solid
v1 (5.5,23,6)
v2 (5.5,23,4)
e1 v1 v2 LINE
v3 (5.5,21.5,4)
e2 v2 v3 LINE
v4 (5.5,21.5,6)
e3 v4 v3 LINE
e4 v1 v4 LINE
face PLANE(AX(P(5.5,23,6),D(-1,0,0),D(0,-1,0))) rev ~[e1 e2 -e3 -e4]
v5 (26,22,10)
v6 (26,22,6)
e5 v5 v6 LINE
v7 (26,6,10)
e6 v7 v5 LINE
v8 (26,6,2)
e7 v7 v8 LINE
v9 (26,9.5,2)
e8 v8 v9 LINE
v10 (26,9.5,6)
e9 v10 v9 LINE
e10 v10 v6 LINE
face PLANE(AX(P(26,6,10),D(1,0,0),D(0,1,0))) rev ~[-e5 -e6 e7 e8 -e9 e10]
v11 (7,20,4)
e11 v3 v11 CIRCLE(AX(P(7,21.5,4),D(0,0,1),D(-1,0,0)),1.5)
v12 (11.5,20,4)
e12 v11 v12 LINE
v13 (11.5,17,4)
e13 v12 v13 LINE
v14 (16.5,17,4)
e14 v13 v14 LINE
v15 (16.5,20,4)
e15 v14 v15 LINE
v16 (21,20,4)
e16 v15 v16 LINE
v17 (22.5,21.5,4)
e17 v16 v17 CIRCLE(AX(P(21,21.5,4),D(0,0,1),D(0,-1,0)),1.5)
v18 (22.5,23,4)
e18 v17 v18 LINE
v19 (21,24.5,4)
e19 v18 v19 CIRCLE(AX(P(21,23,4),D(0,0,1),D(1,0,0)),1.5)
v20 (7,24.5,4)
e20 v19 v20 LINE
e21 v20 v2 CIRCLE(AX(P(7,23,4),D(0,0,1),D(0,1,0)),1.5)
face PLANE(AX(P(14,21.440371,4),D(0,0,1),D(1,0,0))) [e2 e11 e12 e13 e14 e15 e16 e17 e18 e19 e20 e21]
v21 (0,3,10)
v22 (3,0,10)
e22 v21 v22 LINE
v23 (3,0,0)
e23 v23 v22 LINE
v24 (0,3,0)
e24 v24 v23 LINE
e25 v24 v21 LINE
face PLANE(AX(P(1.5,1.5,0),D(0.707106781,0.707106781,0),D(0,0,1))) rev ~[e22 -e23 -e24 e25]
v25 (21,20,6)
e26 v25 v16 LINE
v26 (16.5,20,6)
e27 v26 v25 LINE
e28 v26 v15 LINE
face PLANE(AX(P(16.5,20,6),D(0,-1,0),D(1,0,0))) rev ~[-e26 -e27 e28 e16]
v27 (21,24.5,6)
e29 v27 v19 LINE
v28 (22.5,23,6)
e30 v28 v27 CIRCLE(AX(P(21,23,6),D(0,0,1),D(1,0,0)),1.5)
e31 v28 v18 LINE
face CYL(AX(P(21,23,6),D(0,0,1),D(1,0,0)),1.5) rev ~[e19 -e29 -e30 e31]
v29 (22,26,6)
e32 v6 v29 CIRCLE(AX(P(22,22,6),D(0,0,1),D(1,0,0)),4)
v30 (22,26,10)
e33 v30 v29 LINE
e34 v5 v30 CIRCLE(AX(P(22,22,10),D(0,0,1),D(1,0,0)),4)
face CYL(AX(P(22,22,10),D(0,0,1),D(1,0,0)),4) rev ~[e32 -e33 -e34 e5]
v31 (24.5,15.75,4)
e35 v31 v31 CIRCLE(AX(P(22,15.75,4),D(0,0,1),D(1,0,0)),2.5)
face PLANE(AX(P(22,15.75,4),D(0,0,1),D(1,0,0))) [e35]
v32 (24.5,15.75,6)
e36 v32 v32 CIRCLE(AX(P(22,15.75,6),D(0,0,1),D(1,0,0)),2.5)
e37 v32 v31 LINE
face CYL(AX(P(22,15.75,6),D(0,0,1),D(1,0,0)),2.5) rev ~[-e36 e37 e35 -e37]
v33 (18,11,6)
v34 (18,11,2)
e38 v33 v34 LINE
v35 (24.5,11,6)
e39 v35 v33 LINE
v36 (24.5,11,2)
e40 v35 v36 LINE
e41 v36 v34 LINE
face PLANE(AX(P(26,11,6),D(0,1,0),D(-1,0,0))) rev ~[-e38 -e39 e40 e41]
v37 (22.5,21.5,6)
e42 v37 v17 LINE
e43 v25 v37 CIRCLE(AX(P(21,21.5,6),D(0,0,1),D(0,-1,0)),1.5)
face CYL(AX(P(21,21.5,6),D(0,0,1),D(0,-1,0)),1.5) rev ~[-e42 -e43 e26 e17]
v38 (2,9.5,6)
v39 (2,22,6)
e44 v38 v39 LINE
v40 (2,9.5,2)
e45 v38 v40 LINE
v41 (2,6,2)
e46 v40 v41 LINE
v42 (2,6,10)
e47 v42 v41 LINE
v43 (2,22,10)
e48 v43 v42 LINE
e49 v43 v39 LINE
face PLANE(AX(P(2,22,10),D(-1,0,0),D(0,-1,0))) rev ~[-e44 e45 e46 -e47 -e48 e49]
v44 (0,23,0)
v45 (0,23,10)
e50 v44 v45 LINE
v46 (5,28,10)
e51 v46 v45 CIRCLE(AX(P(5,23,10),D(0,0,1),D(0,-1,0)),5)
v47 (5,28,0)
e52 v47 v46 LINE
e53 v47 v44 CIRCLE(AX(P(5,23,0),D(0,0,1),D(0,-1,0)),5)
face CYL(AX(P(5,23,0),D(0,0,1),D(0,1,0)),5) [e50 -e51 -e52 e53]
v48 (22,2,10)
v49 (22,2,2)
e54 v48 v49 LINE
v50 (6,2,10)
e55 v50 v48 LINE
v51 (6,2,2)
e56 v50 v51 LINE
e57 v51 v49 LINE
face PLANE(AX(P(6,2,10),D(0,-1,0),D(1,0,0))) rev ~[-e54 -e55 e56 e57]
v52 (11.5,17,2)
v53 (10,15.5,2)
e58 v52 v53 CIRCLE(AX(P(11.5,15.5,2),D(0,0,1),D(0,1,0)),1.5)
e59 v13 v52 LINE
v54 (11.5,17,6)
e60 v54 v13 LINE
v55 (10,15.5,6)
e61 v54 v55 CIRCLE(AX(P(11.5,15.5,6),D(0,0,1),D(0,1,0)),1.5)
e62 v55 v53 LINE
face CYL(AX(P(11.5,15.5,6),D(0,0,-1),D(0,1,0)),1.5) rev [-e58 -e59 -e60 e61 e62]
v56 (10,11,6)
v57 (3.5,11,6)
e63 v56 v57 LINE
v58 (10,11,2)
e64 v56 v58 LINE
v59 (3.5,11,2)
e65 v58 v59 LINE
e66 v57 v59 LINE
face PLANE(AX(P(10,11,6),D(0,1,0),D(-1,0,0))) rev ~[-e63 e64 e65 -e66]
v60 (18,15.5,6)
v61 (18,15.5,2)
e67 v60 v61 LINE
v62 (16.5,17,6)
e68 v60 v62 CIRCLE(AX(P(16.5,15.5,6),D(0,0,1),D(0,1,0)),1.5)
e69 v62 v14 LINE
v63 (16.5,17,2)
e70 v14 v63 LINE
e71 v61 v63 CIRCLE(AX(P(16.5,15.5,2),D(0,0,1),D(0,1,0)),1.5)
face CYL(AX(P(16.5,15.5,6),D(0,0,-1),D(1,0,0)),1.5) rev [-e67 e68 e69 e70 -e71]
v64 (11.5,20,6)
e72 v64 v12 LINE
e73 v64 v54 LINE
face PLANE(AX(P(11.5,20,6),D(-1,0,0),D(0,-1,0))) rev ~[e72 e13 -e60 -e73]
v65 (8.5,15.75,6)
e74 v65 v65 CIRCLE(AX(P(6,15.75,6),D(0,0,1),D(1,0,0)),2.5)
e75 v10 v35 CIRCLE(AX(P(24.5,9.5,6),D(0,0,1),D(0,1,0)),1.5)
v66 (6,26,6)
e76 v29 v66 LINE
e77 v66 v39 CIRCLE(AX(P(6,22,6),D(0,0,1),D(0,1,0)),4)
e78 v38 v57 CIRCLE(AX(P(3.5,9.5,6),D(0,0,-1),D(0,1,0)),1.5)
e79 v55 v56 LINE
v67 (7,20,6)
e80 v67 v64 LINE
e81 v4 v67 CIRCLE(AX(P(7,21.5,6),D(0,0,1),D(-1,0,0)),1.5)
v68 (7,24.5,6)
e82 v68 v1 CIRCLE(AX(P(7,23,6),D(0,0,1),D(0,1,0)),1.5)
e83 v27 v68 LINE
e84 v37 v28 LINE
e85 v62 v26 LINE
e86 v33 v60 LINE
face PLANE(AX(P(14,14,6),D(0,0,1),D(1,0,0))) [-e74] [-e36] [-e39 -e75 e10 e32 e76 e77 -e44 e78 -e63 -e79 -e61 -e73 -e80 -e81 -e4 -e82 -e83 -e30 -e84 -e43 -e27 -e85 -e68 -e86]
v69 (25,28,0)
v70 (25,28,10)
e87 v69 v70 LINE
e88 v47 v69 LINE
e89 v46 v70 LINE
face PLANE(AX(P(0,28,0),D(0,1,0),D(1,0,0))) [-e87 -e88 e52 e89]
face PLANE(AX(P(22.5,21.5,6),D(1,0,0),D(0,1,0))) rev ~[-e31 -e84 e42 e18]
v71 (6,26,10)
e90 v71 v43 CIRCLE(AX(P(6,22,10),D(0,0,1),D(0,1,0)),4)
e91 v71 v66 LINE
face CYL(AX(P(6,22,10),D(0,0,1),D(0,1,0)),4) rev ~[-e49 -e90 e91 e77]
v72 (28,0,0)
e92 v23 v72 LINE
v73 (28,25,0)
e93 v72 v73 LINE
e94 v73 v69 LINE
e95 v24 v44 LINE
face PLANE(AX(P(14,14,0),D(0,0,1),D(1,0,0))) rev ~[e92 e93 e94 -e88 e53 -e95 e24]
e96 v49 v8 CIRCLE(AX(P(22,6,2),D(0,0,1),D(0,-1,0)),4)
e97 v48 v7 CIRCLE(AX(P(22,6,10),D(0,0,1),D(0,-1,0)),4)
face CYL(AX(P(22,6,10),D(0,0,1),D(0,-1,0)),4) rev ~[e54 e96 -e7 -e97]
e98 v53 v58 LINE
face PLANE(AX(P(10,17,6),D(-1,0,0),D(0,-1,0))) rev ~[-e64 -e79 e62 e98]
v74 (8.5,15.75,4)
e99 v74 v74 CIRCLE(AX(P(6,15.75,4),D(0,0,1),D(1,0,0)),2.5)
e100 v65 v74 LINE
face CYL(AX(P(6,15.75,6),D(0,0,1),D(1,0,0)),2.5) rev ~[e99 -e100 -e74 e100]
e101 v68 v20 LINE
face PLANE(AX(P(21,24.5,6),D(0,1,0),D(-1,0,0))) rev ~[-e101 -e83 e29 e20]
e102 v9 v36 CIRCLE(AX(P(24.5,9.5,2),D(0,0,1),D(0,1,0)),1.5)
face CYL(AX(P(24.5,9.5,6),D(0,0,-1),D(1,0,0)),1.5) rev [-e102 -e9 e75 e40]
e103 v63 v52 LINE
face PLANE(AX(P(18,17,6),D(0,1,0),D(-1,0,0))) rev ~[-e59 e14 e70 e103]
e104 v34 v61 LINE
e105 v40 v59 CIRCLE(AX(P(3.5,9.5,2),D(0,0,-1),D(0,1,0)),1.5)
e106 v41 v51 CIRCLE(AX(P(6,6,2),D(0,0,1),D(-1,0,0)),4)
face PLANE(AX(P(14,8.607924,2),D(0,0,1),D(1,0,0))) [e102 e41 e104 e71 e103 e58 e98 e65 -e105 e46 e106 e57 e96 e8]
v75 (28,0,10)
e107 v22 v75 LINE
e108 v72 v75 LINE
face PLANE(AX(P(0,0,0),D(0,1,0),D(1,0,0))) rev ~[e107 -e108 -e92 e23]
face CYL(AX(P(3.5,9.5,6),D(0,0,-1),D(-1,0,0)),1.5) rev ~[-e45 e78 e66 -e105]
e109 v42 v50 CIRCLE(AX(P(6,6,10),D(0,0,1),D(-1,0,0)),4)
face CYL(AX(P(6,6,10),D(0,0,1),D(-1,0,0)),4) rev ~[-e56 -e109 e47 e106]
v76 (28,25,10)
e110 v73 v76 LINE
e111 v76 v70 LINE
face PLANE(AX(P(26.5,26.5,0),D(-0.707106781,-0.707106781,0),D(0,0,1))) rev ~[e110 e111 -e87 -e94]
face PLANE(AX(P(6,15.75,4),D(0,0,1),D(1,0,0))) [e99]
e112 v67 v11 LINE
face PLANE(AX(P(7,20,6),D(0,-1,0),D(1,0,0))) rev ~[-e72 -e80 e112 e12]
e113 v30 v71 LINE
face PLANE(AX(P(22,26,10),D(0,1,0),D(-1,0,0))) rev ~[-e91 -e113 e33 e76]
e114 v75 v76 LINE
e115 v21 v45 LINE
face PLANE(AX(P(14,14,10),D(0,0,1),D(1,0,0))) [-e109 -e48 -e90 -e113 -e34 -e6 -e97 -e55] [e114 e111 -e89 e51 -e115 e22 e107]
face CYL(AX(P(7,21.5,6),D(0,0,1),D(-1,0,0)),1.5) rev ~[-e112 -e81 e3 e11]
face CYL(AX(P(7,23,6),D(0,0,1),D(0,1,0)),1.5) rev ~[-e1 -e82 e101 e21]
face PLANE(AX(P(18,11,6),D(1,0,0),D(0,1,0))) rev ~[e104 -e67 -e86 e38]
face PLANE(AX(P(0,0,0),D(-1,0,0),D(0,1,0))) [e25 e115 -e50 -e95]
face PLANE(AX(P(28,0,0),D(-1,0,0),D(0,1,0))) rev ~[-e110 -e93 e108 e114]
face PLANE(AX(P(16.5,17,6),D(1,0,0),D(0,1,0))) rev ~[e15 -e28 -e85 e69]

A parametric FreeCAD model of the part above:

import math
import FreeCAD as App
import Part
import Sketcher

V = App.Vector


def edges_at(feature, points):
    """Names of the edges that pass closest to the given points."""
    edges = feature.Shape.Edges
    near = lambda p: min(range(len(edges)), key=lambda i: edges[i].distToShape(Part.Vertex(*p))[0])
    return sorted({f"Edge{near(p) + 1}" for p in points})

doc = App.newDocument("Part")
body = doc.addObject("PartDesign::Body", "Body")

# Sketch on XY plane
sketch1 = body.newObject("Sketcher::SketchObject", "Sketch")
sketch1.AttachmentSupport = (doc.getObject("XY_Plane"), [""])
sketch1.MapMode = "FlatFace"
sketch1.addGeometry(Part.LineSegment(V(0, 28, 0), V(0, 0, 0)), False)
sketch1.addGeometry(Part.LineSegment(V(0, 0, 0), V(28, 0, 0)), False)
sketch1.addGeometry(Part.LineSegment(V(28, 0, 0), V(28, 28, 0)), False)
sketch1.addGeometry(Part.LineSegment(V(28, 28, 0), V(0, 28, 0)), False)
sketch1.addConstraint(Sketcher.Constraint("Coincident", 0, 2, 1, 1))
sketch1.addConstraint(Sketcher.Constraint("Coincident", 1, 2, 2, 1))
sketch1.addConstraint(Sketcher.Constraint("Coincident", 2, 2, 3, 1))
sketch1.addConstraint(Sketcher.Constraint("Coincident", 3, 2, 0, 1))
sketch1.addConstraint(Sketcher.Constraint("Vertical", 0))
sketch1.addConstraint(Sketcher.Constraint("Horizontal", 1))
sketch1.addConstraint(Sketcher.Constraint("Vertical", 2))
sketch1.addConstraint(Sketcher.Constraint("Horizontal", 3))
sketch1.addConstraint(Sketcher.Constraint("Coincident", 0, 2, -1, 1))
sketch1.addConstraint(Sketcher.Constraint("Equal", 3, 0))
sketch1.addConstraint(Sketcher.Constraint("DistanceX", 1, 1, 1, 2, 28.0))
pad1 = body.newObject("PartDesign::Pad", "Pad")
pad1.Profile = sketch1
pad1.Length = 10

# Sketch on XY plane
sketch2 = body.newObject("Sketcher::SketchObject", "Sketch001")
sketch2.AttachmentSupport = (doc.getObject("XY_Plane"), [""])
sketch2.MapMode = "FlatFace"
sketch2.AttachmentOffset = App.Placement(V(0, 0, 10), App.Rotation())
sketch2.addGeometry(Part.ArcOfCircle(Part.Circle(V(22, 22, 0), V(0, 0, 1), 4), math.radians(0), math.radians(90)), False)
sketch2.addGeometry(Part.LineSegment(V(22, 26, 0), V(6, 26, 0)), False)
sketch2.addGeometry(Part.ArcOfCircle(Part.Circle(V(6, 22, 0), V(0, 0, 1), 4), math.radians(90), math.radians(180)), False)
sketch2.addGeometry(Part.LineSegment(V(2, 22, 0), V(2, 6, 0)), False)
sketch2.addGeometry(Part.ArcOfCircle(Part.Circle(V(6, 6, 0), V(0, 0, 1), 4), math.radians(180), math.radians(270)), False)
sketch2.addGeometry(Part.LineSegment(V(6, 2, 0), V(22, 2, 0)), False)
sketch2.addGeometry(Part.ArcOfCircle(Part.Circle(V(22, 6, 0), V(0, 0, 1), 4), math.radians(-90), math.radians(0)), False)
sketch2.addGeometry(Part.LineSegment(V(26, 6, 0), V(26, 22, 0)), False)
sketch2.addConstraint(Sketcher.Constraint("Tangent", 0, 2, 1, 1))
sketch2.addConstraint(Sketcher.Constraint("Tangent", 1, 2, 2, 1))
sketch2.addConstraint(Sketcher.Constraint("Tangent", 2, 2, 3, 1))
sketch2.addConstraint(Sketcher.Constraint("Tangent", 3, 2, 4, 1))
sketch2.addConstraint(Sketcher.Constraint("Tangent", 4, 2, 5, 1))
sketch2.addConstraint(Sketcher.Constraint("Tangent", 5, 2, 6, 1))
sketch2.addConstraint(Sketcher.Constraint("Tangent", 6, 2, 7, 1))
sketch2.addConstraint(Sketcher.Constraint("Tangent", 7, 2, 0, 1))
sketch2.addConstraint(Sketcher.Constraint("Horizontal", 1))
sketch2.addConstraint(Sketcher.Constraint("Vertical", 3))
sketch2.addConstraint(Sketcher.Constraint("Horizontal", 5))
sketch2.addConstraint(Sketcher.Constraint("Vertical", 7))
sketch2.addConstraint(Sketcher.Constraint("Equal", 0, 2))
sketch2.addConstraint(Sketcher.Constraint("Equal", 2, 4))
sketch2.addConstraint(Sketcher.Constraint("Equal", 4, 6))
sketch2.addConstraint(Sketcher.Constraint("Equal", 5, 3))
sketch2.addConstraint(Sketcher.Constraint("Radius", 0, 4.0))
sketch2.addConstraint(Sketcher.Constraint("DistanceX", 1, 2, 1, 1, 16.0))
sketch2.addConstraint(Sketcher.Constraint("DistanceX", -1, 1, 0, 3, 22.0))
sketch2.addConstraint(Sketcher.Constraint("DistanceY", -1, 1, 0, 3, 22.0))
pocket1 = body.newObject("PartDesign::Pocket", "Pocket")
pocket1.Profile = sketch2
pocket1.Length = 4

# Sketch on XY plane
sketch3 = body.newObject("Sketcher::SketchObject", "Sketch002")
sketch3.AttachmentSupport = (doc.getObject("XY_Plane"), [""])
sketch3.MapMode = "FlatFace"
sketch3.AttachmentOffset = App.Placement(V(0, 0, 6), App.Rotation())
sketch3.addGeometry(Part.LineSegment(V(10, 11, 0), V(2, 11, 0)), False)
sketch3.addGeometry(Part.LineSegment(V(2, 11, 0), V(2, 6, 0)), False)
sketch3.addGeometry(Part.ArcOfCircle(Part.Circle(V(6, 6, 0), V(0, 0, 1), 4), math.radians(180), math.radians(270)), False)
sketch3.addGeometry(Part.LineSegment(V(6, 2, 0), V(22, 2, 0)), False)
sketch3.addGeometry(Part.ArcOfCircle(Part.Circle(V(22, 6, 0), V(0, 0, 1), 4), math.radians(-90), math.radians(0)), False)
sketch3.addGeometry(Part.LineSegment(V(26, 6, 0), V(26, 11, 0)), False)
sketch3.addGeometry(Part.LineSegment(V(26, 11, 0), V(18, 11, 0)), False)
sketch3.addGeometry(Part.LineSegment(V(18, 11, 0), V(18, 17, 0)), False)
sketch3.addGeometry(Part.LineSegment(V(18, 17, 0), V(10, 17, 0)), False)
sketch3.addGeometry(Part.LineSegment(V(10, 17, 0), V(10, 11, 0)), False)
sketch3.addConstraint(Sketcher.Constraint("Coincident", 0, 2, 1, 1))
sketch3.addConstraint(Sketcher.Constraint("Tangent", 1, 2, 2, 1))
sketch3.addConstraint(Sketcher.Constraint("Tangent", 2, 2, 3, 1))
sketch3.addConstraint(Sketcher.Constraint("Tangent", 3, 2, 4, 1))
sketch3.addConstraint(Sketcher.Constraint("Tangent", 4, 2, 5, 1))
sketch3.addConstraint(Sketcher.Constraint("Coincident", 5, 2, 6, 1))
sketch3.addConstraint(Sketcher.Constraint("Coincident", 6, 2, 7, 1))
sketch3.addConstraint(Sketcher.Constraint("Coincident", 7, 2, 8, 1))
sketch3.addConstraint(Sketcher.Constraint("Coincident", 8, 2, 9, 1))
sketch3.addConstraint(Sketcher.Constraint("Coincident", 9, 2, 0, 1))
sketch3.addConstraint(Sketcher.Constraint("Horizontal", 0))
sketch3.addConstraint(Sketcher.Constraint("Vertical", 1))
sketch3.addConstraint(Sketcher.Constraint("Horizontal", 3))
sketch3.addConstraint(Sketcher.Constraint("Vertical", 5))
sketch3.addConstraint(Sketcher.Constraint("Horizontal", 6))
sketch3.addConstraint(Sketcher.Constraint("Vertical", 7))
sketch3.addConstraint(Sketcher.Constraint("Horizontal", 8))
sketch3.addConstraint(Sketcher.Constraint("Vertical", 9))
sketch3.addConstraint(Sketcher.Constraint("Equal", 2, 4))
sketch3.addConstraint(Sketcher.Constraint("Horizontal", 0, 2, 5, 2))
sketch3.addConstraint(Sketcher.Constraint("Equal", 0, 6))
sketch3.addConstraint(Sketcher.Constraint("Equal", 6, 8))
sketch3.addConstraint(Sketcher.Constraint("Radius", 2, 4.0))
sketch3.addConstraint(Sketcher.Constraint("DistanceX", 0, 2, 0, 1, 8.0))
sketch3.addConstraint(Sketcher.Constraint("DistanceY", 1, 2, 1, 1, 5.0))
sketch3.addConstraint(Sketcher.Constraint("DistanceY", 7, 1, 7, 2, 6.0))
sketch3.addConstraint(Sketcher.Constraint("DistanceX", -1, 1, 2, 3, 6.0))
sketch3.addConstraint(Sketcher.Constraint("DistanceY", -1, 1, 2, 3, 6.0))
pocket2 = body.newObject("PartDesign::Pocket", "Pocket001")
pocket2.Profile = sketch3
pocket2.Length = 4
doc.recompute()

chamfer = body.newObject("PartDesign::Chamfer", "Chamfer")
chamfer.Base = (pocket2, edges_at(pocket2, [(0, 0, 5), (28, 28, 5)]))
chamfer.Size = 3
doc.recompute()

fillet = body.newObject("PartDesign::Fillet", "Fillet")
fillet.Base = (chamfer, edges_at(chamfer, [
    (2, 11, 4),
    (10, 17, 4),
    (18, 17, 4),
    (26, 11, 4),
]))
fillet.Radius = 1.5
doc.recompute()

fillet2 = body.newObject("PartDesign::Fillet", "Fillet001")
fillet2.Base = (fillet, edges_at(fillet, [(0, 28, 5)]))
fillet2.Radius = 5

# Sketch on XY plane
sketch4 = body.newObject("Sketcher::SketchObject", "Sketch003")
sketch4.AttachmentSupport = (doc.getObject("XY_Plane"), [""])
sketch4.MapMode = "FlatFace"
sketch4.AttachmentOffset = App.Placement(V(0, 0, 6), App.Rotation())
sketch4.addGeometry(Part.LineSegment(V(11.5, 20, 0), V(11.5, 17, 0)), False)
sketch4.addGeometry(Part.LineSegment(V(11.5, 17, 0), V(16.5, 17, 0)), False)
sketch4.addGeometry(Part.LineSegment(V(16.5, 17, 0), V(16.5, 20, 0)), False)
sketch4.addGeometry(Part.LineSegment(V(16.5, 20, 0), V(21, 20, 0)), False)
sketch4.addGeometry(Part.ArcOfCircle(Part.Circle(V(21, 21.5, 0), V(0, 0, 1), 1.5), math.radians(-90), math.radians(0)), False)
sketch4.addGeometry(Part.LineSegment(V(22.5, 21.5, 0), V(22.5, 23, 0)), False)
sketch4.addGeometry(Part.ArcOfCircle(Part.Circle(V(21, 23, 0), V(0, 0, 1), 1.5), math.radians(0), math.radians(90)), False)
sketch4.addGeometry(Part.LineSegment(V(21, 24.5, 0), V(7, 24.5, 0)), False)
sketch4.addGeometry(Part.ArcOfCircle(Part.Circle(V(7, 23, 0), V(0, 0, 1), 1.5), math.radians(90), math.radians(180)), False)
sketch4.addGeometry(Part.LineSegment(V(5.5, 23, 0), V(5.5, 21.5, 0)), False)
sketch4.addGeometry(Part.ArcOfCircle(Part.Circle(V(7, 21.5, 0), V(0, 0, 1), 1.5), math.radians(180), math.radians(270)), False)
sketch4.addGeometry(Part.LineSegment(V(7, 20, 0), V(11.5, 20, 0)), False)
sketch4.addGeometry(Part.Circle(V(22, 15.8, 0), V(0, 0, 1), 2.5), False)
sketch4.addGeometry(Part.Circle(V(6, 15.8, 0), V(0, 0, 1), 2.5), False)
sketch4.addConstraint(Sketcher.Constraint("Coincident", 0, 2, 1, 1))
sketch4.addConstraint(Sketcher.Constraint("Coincident", 1, 2, 2, 1))
sketch4.addConstraint(Sketcher.Constraint("Coincident", 2, 2, 3, 1))
sketch4.addConstraint(Sketcher.Constraint("Tangent", 3, 2, 4, 1))
sketch4.addConstraint(Sketcher.Constraint("Tangent", 4, 2, 5, 1))
sketch4.addConstraint(Sketcher.Constraint("Tangent", 5, 2, 6, 1))
sketch4.addConstraint(Sketcher.Constraint("Tangent", 6, 2, 7, 1))
sketch4.addConstraint(Sketcher.Constraint("Tangent", 7, 2, 8, 1))
sketch4.addConstraint(Sketcher.Constraint("Tangent", 8, 2, 9, 1))
sketch4.addConstraint(Sketcher.Constraint("Tangent", 9, 2, 10, 1))
sketch4.addConstraint(Sketcher.Constraint("Tangent", 10, 2, 11, 1))
sketch4.addConstraint(Sketcher.Constraint("Coincident", 11, 2, 0, 1))
sketch4.addConstraint(Sketcher.Constraint("Vertical", 0))
sketch4.addConstraint(Sketcher.Constraint("Horizontal", 1))
sketch4.addConstraint(Sketcher.Constraint("Vertical", 2))
sketch4.addConstraint(Sketcher.Constraint("Horizontal", 3))
sketch4.addConstraint(Sketcher.Constraint("Vertical", 5))
sketch4.addConstraint(Sketcher.Constraint("Horizontal", 7))
sketch4.addConstraint(Sketcher.Constraint("Vertical", 9))
sketch4.addConstraint(Sketcher.Constraint("Horizontal", 11))
sketch4.addConstraint(Sketcher.Constraint("Equal", 4, 6))
sketch4.addConstraint(Sketcher.Constraint("Equal", 6, 8))
sketch4.addConstraint(Sketcher.Constraint("Equal", 8, 10))
sketch4.addConstraint(Sketcher.Constraint("Equal", 12, 13))
sketch4.addConstraint(Sketcher.Constraint("Horizontal", 4, 3, 10, 3))
sketch4.addConstraint(Sketcher.Constraint("Horizontal", 12, 3, 13, 3))
sketch4.addConstraint(Sketcher.Constraint("Equal", 3, 11))
sketch4.addConstraint(Sketcher.Constraint("Diameter", 12, 5.0))
sketch4.addConstraint(Sketcher.Constraint("Radius", 4, 1.5))
sketch4.addConstraint(Sketcher.Constraint("DistanceX", 1, 1, 1, 2, 5.0))
sketch4.addConstraint(Sketcher.Constraint("DistanceX", 7, 2, 7, 1, 14.0))
sketch4.addConstraint(Sketcher.Constraint("DistanceY", 0, 2, 0, 1, 3.0))
sketch4.addConstraint(Sketcher.Constraint("DistanceY", 5, 1, 5, 2, 1.5))
sketch4.addConstraint(Sketcher.Constraint("DistanceX", -1, 1, 4, 3, 21.0))
sketch4.addConstraint(Sketcher.Constraint("DistanceY", -1, 1, 6, 3, 23.0))
sketch4.addConstraint(Sketcher.Constraint("DistanceX", -1, 1, 12, 3, 22.0))
sketch4.addConstraint(Sketcher.Constraint("DistanceX", -1, 1, 13, 3, 6.0))
sketch4.addConstraint(Sketcher.Constraint("DistanceY", -1, 1, 12, 3, 15.75))
pocket3 = body.newObject("PartDesign::Pocket", "Pocket002")
pocket3.Profile = sketch4
pocket3.Length = 2

doc.recompute()
